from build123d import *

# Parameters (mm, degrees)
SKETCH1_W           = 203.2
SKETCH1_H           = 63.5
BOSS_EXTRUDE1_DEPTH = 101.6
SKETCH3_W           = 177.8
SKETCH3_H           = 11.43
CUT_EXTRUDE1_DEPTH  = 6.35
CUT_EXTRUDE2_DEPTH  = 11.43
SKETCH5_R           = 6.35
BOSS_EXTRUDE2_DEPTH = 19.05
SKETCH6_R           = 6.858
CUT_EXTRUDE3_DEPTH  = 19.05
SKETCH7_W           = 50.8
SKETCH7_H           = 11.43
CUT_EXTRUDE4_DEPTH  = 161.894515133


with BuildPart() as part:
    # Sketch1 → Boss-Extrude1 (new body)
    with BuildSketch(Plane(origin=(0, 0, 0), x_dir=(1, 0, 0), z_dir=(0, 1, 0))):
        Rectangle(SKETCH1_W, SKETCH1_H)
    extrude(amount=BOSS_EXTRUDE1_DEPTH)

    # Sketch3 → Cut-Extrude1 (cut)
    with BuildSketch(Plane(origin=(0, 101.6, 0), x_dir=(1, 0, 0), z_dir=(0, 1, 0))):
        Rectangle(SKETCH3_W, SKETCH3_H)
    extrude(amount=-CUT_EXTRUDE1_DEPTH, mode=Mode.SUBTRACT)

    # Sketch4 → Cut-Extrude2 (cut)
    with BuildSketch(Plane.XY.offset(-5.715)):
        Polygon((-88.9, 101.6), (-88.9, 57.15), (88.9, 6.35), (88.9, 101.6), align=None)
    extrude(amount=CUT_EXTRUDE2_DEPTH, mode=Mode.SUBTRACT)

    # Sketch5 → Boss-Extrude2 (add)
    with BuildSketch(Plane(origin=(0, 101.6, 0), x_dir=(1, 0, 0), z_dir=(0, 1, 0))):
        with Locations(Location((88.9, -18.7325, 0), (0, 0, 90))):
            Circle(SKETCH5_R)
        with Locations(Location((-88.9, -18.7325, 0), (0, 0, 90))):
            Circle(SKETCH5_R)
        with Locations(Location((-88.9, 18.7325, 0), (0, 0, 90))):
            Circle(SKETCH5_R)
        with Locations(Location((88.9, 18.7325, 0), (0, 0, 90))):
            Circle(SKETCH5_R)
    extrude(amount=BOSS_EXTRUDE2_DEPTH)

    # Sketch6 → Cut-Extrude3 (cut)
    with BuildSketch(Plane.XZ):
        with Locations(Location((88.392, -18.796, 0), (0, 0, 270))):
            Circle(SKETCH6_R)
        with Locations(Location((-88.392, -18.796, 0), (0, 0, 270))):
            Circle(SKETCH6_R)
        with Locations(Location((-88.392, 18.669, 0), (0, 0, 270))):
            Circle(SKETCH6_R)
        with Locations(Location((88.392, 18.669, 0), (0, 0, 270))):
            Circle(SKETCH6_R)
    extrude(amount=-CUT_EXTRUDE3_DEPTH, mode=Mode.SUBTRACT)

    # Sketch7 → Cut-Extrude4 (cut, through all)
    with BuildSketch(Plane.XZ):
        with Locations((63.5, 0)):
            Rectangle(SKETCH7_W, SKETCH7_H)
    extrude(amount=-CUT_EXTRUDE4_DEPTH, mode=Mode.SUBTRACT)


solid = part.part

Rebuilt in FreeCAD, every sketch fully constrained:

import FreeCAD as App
import Part
import Sketcher
Q = App.Units.Quantity


def add_polygon(sketch, points):
    """Adds a closed chain of lines whose ends are joined by coincident constraints."""
    first, n = sketch.GeometryCount, len(points)
    for a, b in zip(points, points[1:] + points[:1]):
        sketch.addGeometry(Part.LineSegment(App.Vector(*a, 0), App.Vector(*b, 0)), False)
    for i in range(n):
        sketch.addConstraint(Sketcher.Constraint("Coincident", first + i, 2, first + (i + 1) % n, 1))

doc = App.newDocument("Part")
params = doc.addObject("Spreadsheet::Sheet", "Params")
for row, (alias, value) in enumerate([
    ("sketch1_width", "8 in"),
    ("sketch1_height", "2.5 in"),
    ("pad1_length", "4 in"),
    ("sketch2_width", "7 in"),
    ("sketch2_height", "0.45 in"),
    ("pocket1_length", "0.25 in"),
    ("sketch3_width", "7 in"),
    ("sketch3_height", "1.75 in"),
    ("pocket2_length", "0.45 in"),
    ("sketch4_diameter", "0.5 in"),
    ("pad2_length", "0.75 in"),
    ("sketch5_diameter", "0.54 in"),
    ("pocket3_length", "0.75 in"),
    ("sketch6_width", "2 in"),
    ("sketch6_height", "0.45 in"),
], start=1):
    params.set(f"A{row}", alias)
    params.set(f"B{row}", "=" + value)
    params.setAlias(f"B{row}", alias)

body = doc.addObject("PartDesign::Body", "Body")

# Sketch on XZ plane
sketch1 = body.newObject("Sketcher::SketchObject", "Sketch")
sketch1.AttachmentSupport = (doc.getObject("XZ_Plane"), [""])
sketch1.MapMode = "FlatFace"
add_polygon(sketch1, [(-102, -32), (-102, 32), (102, 32), (102, -32)])  # lines 0-3
sketch1.addConstraint(Sketcher.Constraint("Vertical", 0))
sketch1.addConstraint(Sketcher.Constraint("Horizontal", 1))
sketch1.addConstraint(Sketcher.Constraint("Vertical", 2))
sketch1.addConstraint(Sketcher.Constraint("Horizontal", 3))
sketch1.addConstraint(Sketcher.Constraint("Symmetric", 0, 2, 2, 2, -1, 1))
sketch1.addConstraint(Sketcher.Constraint("DistanceX", 1, 1, 1, 2, Q("8 in")))
sketch1.addConstraint(Sketcher.Constraint("DistanceY", 0, 1, 0, 2, Q("2.5 in")))
sketch1.setExpression("Constraints[9]", "Params.sketch1_width")
sketch1.setExpression("Constraints[10]", "Params.sketch1_height")
pad1 = body.newObject("PartDesign::Pad", "Pad")
pad1.Profile = sketch1
pad1.setExpression("Length", "Params.pad1_length")
pad1.Reversed = True

# Sketch on XZ plane
sketch2 = body.newObject("Sketcher::SketchObject", "Sketch001")
sketch2.AttachmentSupport = (doc.getObject("XZ_Plane"), [""])
sketch2.MapMode = "FlatFace"
sketch2.AttachmentOffset = App.Placement(App.Vector(0, 0, -4 * 25.4), App.Rotation())
add_polygon(sketch2, [(-89, -6), (-89, 6), (89, 6), (89, -6)])  # lines 0-3
sketch2.addConstraint(Sketcher.Constraint("Vertical", 0))
sketch2.addConstraint(Sketcher.Constraint("Horizontal", 1))
sketch2.addConstraint(Sketcher.Constraint("Vertical", 2))
sketch2.addConstraint(Sketcher.Constraint("Horizontal", 3))
sketch2.addConstraint(Sketcher.Constraint("Symmetric", 0, 2, 2, 2, -1, 1))
sketch2.addConstraint(Sketcher.Constraint("DistanceX", 1, 1, 1, 2, Q("7 in")))
sketch2.addConstraint(Sketcher.Constraint("DistanceY", 0, 1, 0, 2, Q("0.45 in")))
sketch2.setExpression("Constraints[9]", "Params.sketch2_width")
sketch2.setExpression("Constraints[10]", "Params.sketch2_height")
pocket1 = body.newObject("PartDesign::Pocket", "Pocket")
pocket1.Profile = sketch2
pocket1.setExpression("Length", "Params.pocket1_length")
pocket1.Reversed = True

# Sketch on XY plane
sketch3 = body.newObject("Sketcher::SketchObject", "Sketch002")
sketch3.AttachmentSupport = (doc.getObject("XY_Plane"), [""])
sketch3.MapMode = "FlatFace"
sketch3.AttachmentOffset = App.Placement(App.Vector(0, 0, -0.225 * 25.4), App.Rotation())
add_polygon(sketch3, [(-89, 102), (-89, 57), (89, 6), (89, 102)])  # lines 0-3
sketch3.addConstraint(Sketcher.Constraint("Vertical", 0))
sketch3.addConstraint(Sketcher.Constraint("Vertical", 2))
sketch3.addConstraint(Sketcher.Constraint("Horizontal", 3))
sketch3.addConstraint(Sketcher.Constraint("DistanceX", 3, 2, 3, 1, Q("7 in")))
sketch3.addConstraint(Sketcher.Constraint("DistanceY", -1, 1, 2, 2, Q("4 in")))
sketch3.addConstraint(Sketcher.Constraint("DistanceY", 1, 2, 0, 2, Q("2 in")))
sketch3.addConstraint(Sketcher.Constraint("DistanceY", 0, 2, 0, 1, Q("1.75 in")))
sketch3.addConstraint(Sketcher.Constraint("DistanceX", 0, 2, -1, 1, Q("3.5 in")))
sketch3.setExpression("Constraints[7]", "Params.sketch3_width")
sketch3.setExpression("Constraints[10]", "Params.sketch3_height")
pocket2 = body.newObject("PartDesign::Pocket", "Pocket001")
pocket2.Profile = sketch3
pocket2.setExpression("Length", "Params.pocket2_length")
pocket2.Reversed = True

# Sketch on XZ plane
sketch4 = body.newObject("Sketcher::SketchObject", "Sketch003")
sketch4.AttachmentSupport = (doc.getObject("XZ_Plane"), [""])
sketch4.MapMode = "FlatFace"
sketch4.AttachmentOffset = App.Placement(App.Vector(0, 0, -4 * 25.4), App.Rotation())
sketch4.addGeometry(Part.Circle(App.Vector(89, 19, 0), App.Vector(0, 0, 1), 6), False)
sketch4.addGeometry(Part.Circle(App.Vector(-89, 19, 0), App.Vector(0, 0, 1), 6), False)
sketch4.addGeometry(Part.Circle(App.Vector(-89, -19, 0), App.Vector(0, 0, 1), 6), False)
sketch4.addGeometry(Part.Circle(App.Vector(89, -19, 0), App.Vector(0, 0, 1), 6), False)
sketch4.addConstraint(Sketcher.Constraint("Equal", 0, 1))
sketch4.addConstraint(Sketcher.Constraint("Equal", 1, 2))
sketch4.addConstraint(Sketcher.Constraint("Equal", 2, 3))
sketch4.addConstraint(Sketcher.Constraint("Symmetric", 0, 3, 2, 3, -1, 1))
sketch4.addConstraint(Sketcher.Constraint("Symmetric", 1, 3, 3, 3, -1, 1))
sketch4.addConstraint(Sketcher.Constraint("Symmetric", 0, 3, 1, 3, -2))
sketch4.addConstraint(Sketcher.Constraint("Diameter", 0, Q("0.5 in")))
sketch4.addConstraint(Sketcher.Constraint("DistanceX", 1, 3, 0, 3, Q("7 in")))
sketch4.addConstraint(Sketcher.Constraint("DistanceY", 2, 3, 1, 3, Q("1.475 in")))
sketch4.setExpression("Constraints[6]", "Params.sketch4_diameter")
pad2 = body.newObject("PartDesign::Pad", "Pad001")
pad2.Profile = sketch4
pad2.setExpression("Length", "Params.pad2_length")
pad2.Reversed = True

# Sketch on XZ plane
sketch5 = body.newObject("Sketcher::SketchObject", "Sketch004")
sketch5.AttachmentSupport = (doc.getObject("XZ_Plane"), [""])
sketch5.MapMode = "FlatFace"
sketch5.addGeometry(Part.Circle(App.Vector(88, -19, 0), App.Vector(0, 0, 1), 7), False)
sketch5.addGeometry(Part.Circle(App.Vector(-88, -19, 0), App.Vector(0, 0, 1), 7), False)
sketch5.addGeometry(Part.Circle(App.Vector(-88, 19, 0), App.Vector(0, 0, 1), 7), False)
sketch5.addGeometry(Part.Circle(App.Vector(88, 19, 0), App.Vector(0, 0, 1), 7), False)
sketch5.addConstraint(Sketcher.Constraint("Equal", 0, 1))
sketch5.addConstraint(Sketcher.Constraint("Equal", 1, 2))
sketch5.addConstraint(Sketcher.Constraint("Equal", 2, 3))
sketch5.addConstraint(Sketcher.Constraint("Symmetric", 0, 3, 1, 3, -2))
sketch5.addConstraint(Sketcher.Constraint("Symmetric", 2, 3, 3, 3, -2))
sketch5.addConstraint(Sketcher.Constraint("Vertical", 1, 3, 2, 3))
sketch5.addConstraint(Sketcher.Constraint("Diameter", 0, Q("0.54 in")))
sketch5.addConstraint(Sketcher.Constraint("DistanceX", -1, 1, 0, 3, Q("3.48 in")))
sketch5.addConstraint(Sketcher.Constraint("DistanceY", 0, 3, -1, 1, Q("0.74 in")))
sketch5.addConstraint(Sketcher.Constraint("DistanceY", -1, 1, 2, 3, Q("0.735 in")))
sketch5.setExpression("Constraints[6]", "Params.sketch5_diameter")
pocket3 = body.newObject("PartDesign::Pocket", "Pocket002")
pocket3.Profile = sketch5
pocket3.setExpression("Length", "Params.pocket3_length")

# Sketch on XZ plane
sketch6 = body.newObject("Sketcher::SketchObject", "Sketch005")
sketch6.AttachmentSupport = (doc.getObject("XZ_Plane"), [""])
sketch6.MapMode = "FlatFace"
add_polygon(sketch6, [(38, 6), (38, -6), (89, -6), (89, 6)])  # lines 0-3
sketch6.addConstraint(Sketcher.Constraint("Vertical", 0))
sketch6.addConstraint(Sketcher.Constraint("Horizontal", 1))
sketch6.addConstraint(Sketcher.Constraint("Vertical", 2))
sketch6.addConstraint(Sketcher.Constraint("Horizontal", 3))
sketch6.addConstraint(Sketcher.Constraint("DistanceX", 1, 1, 1, 2, Q("2 in")))
sketch6.addConstraint(Sketcher.Constraint("DistanceY", 0, 2, 0, 1, Q("0.45 in")))
sketch6.addConstraint(Sketcher.Constraint("DistanceX", -1, 1, 0, 2, Q("1.5 in")))
sketch6.addConstraint(Sketcher.Constraint("DistanceY", 0, 2, -1, 1, Q("0.225 in")))
sketch6.setExpression("Constraints[8]", "Params.sketch6_width")
sketch6.setExpression("Constraints[9]", "Params.sketch6_height")
pocket4 = body.newObject("PartDesign::Pocket", "Pocket003")
pocket4.Profile = sketch6
pocket4.Type = "ThroughAll"

doc.recompute()
